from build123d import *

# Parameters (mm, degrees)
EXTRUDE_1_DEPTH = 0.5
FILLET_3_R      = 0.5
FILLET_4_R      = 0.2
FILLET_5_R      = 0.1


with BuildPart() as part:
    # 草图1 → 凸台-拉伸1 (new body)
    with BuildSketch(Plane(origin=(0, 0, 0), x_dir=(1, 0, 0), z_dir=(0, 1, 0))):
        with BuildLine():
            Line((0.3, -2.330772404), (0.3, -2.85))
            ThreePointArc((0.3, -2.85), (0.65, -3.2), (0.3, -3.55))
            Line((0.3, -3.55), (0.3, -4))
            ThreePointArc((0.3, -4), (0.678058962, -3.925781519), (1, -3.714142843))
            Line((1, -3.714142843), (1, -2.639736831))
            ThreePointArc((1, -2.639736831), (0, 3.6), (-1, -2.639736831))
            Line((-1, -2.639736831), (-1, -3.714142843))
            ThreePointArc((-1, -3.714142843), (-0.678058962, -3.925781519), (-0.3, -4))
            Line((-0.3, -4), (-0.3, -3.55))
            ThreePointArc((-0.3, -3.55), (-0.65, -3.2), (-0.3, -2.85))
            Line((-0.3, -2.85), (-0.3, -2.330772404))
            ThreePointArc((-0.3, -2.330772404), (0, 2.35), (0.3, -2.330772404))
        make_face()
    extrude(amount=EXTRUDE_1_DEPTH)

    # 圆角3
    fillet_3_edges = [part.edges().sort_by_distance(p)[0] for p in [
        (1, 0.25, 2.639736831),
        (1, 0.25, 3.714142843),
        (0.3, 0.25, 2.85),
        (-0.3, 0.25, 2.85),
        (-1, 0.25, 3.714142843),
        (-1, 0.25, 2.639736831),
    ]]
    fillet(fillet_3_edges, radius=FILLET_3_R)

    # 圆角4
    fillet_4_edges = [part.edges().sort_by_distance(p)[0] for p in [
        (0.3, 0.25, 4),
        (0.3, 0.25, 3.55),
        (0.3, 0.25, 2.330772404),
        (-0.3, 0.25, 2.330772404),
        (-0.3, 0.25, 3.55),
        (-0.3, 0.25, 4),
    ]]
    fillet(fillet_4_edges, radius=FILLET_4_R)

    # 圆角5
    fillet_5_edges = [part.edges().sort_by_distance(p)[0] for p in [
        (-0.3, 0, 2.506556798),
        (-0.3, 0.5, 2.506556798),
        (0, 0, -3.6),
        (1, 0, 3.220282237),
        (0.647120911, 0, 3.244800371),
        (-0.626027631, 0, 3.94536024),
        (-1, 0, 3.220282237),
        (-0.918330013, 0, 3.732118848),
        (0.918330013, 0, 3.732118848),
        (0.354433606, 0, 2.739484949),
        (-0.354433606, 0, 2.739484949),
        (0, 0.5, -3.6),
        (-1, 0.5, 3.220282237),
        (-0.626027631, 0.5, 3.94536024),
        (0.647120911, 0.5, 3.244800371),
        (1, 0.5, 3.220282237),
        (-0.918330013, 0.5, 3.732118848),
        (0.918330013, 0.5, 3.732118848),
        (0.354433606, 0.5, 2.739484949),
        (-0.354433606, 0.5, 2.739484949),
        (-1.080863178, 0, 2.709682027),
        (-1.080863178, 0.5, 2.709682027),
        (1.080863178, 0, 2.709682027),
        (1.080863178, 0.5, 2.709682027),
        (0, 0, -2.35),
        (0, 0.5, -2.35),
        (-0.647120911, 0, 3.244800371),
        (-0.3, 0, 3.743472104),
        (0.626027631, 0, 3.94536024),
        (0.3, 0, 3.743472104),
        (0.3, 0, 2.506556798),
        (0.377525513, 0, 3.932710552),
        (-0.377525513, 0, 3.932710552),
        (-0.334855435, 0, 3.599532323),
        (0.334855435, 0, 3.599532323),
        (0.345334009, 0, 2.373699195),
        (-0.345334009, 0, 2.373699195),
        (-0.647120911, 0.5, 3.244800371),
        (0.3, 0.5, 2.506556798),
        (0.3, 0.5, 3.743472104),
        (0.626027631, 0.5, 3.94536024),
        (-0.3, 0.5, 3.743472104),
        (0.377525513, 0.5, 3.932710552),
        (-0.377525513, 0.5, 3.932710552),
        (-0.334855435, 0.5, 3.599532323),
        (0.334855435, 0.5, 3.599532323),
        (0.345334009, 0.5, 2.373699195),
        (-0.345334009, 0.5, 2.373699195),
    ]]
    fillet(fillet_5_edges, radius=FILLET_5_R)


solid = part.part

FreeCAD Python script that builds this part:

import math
import FreeCAD as App
import Part
import Sketcher
Q = App.Units.Quantity


def edges_at(feature, points):
    """Names of the edges that pass closest to the given points."""
    edges = feature.Shape.Edges
    near = lambda p: min(range(len(edges)), key=lambda i: edges[i].distToShape(Part.Vertex(*p))[0])
    return sorted({f"Edge{near(p) + 1}" for p in points})

doc = App.newDocument("Part")
body = doc.addObject("PartDesign::Body", "Body")

# Sketch on XZ plane
sketch1 = doc.addObject("Sketcher::SketchObject", "Sketch")
body.addObject(sketch1)
sketch1.AttachmentSupport = (doc.XZ_Plane, [""])
sketch1.MapMode = "FlatFace"
sketch1.addGeometry([
    Part.LineSegment(App.Vector(0.3, 2.33, 0), App.Vector(0.3, 2.85, 0)),  # 0
    Part.ArcOfCircle(Part.Circle(App.Vector(0.3, 3.2, 0), App.Vector(0, 0, 1), 0.35), math.radians(-90), math.radians(90)),  # 1
    Part.LineSegment(App.Vector(0.3, 3.55, 0), App.Vector(0.3, 4, 0)),  # 2
    Part.ArcOfCircle(Part.Circle(App.Vector(0.3, 3, 0), App.Vector(0, 0, 1), 1), math.radians(46), math.radians(90)),  # 3
    Part.LineSegment(App.Vector(1, 3.71, 0), App.Vector(1, 2.64, 0)),  # 4
    Part.ArcOfCircle(Part.Circle(App.Vector(0, -0.4, 0), App.Vector(0, 0, 1), 3.2), math.radians(108), math.radians(432)),  # 5
    Part.LineSegment(App.Vector(-1, 2.64, 0), App.Vector(-1, 3.71, 0)),  # 6
    Part.ArcOfCircle(Part.Circle(App.Vector(-0.3, 3, 0), App.Vector(0, 0, 1), 1), math.radians(90), math.radians(134)),  # 7
    Part.LineSegment(App.Vector(-0.3, 4, 0), App.Vector(-0.3, 3.55, 0)),  # 8
    Part.ArcOfCircle(Part.Circle(App.Vector(-0.3, 3.2, 0), App.Vector(0, 0, 1), 0.35), math.radians(90), math.radians(270)),  # 9
    Part.LineSegment(App.Vector(-0.3, 2.85, 0), App.Vector(-0.3, 2.33, 0)),  # 10
    Part.ArcOfCircle(Part.Circle(App.Vector(0, 0, 0), App.Vector(0, 0, 1), 2.35), math.radians(97), math.radians(443)),  # 11
], False)
sketch1.addConstraint([
    Sketcher.Constraint("Coincident", 0, 2, 1, 1),
    Sketcher.Constraint("Coincident", 1, 2, 2, 1),
    Sketcher.Constraint("Coincident", 2, 2, 3, 2),
    Sketcher.Constraint("Coincident", 3, 1, 4, 1),
    Sketcher.Constraint("Coincident", 4, 2, 5, 2),
    Sketcher.Constraint("Coincident", 5, 1, 6, 1),
    Sketcher.Constraint("Coincident", 6, 2, 7, 2),
    Sketcher.Constraint("Coincident", 7, 1, 8, 1),
    Sketcher.Constraint("Coincident", 8, 2, 9, 1),
    Sketcher.Constraint("Coincident", 9, 2, 10, 1),
    Sketcher.Constraint("Coincident", 10, 2, 11, 1),
    Sketcher.Constraint("Coincident", 11, 2, 0, 1),
    Sketcher.Constraint("Vertical", 0),
    Sketcher.Constraint("Vertical", 2),
    Sketcher.Constraint("Vertical", 4),
    Sketcher.Constraint("Vertical", 6),
    Sketcher.Constraint("Vertical", 8),
    Sketcher.Constraint("Vertical", 10),
    Sketcher.Constraint("Coincident", 11, 3, -1, 1),
    Sketcher.Constraint("Equal", 3, 7),
    Sketcher.Constraint("Equal", 1, 9),
    Sketcher.Constraint("Symmetric", 3, 3, 7, 3, -2),
    Sketcher.Constraint("Symmetric", 1, 3, 9, 3, -2),
    Sketcher.Constraint("Symmetric", 4, 2, 5, 1, -2),
    Sketcher.Constraint("Horizontal", 10, 2, 11, 2),
    Sketcher.Constraint("Vertical", 1, 3, 3, 3),
    Sketcher.Constraint("Vertical", 3, 3, 0, 2),
    Sketcher.Constraint("Vertical", 0, 2, 1, 2),
    Sketcher.Constraint("Vertical", 9, 3, 7, 1),
    Sketcher.Constraint("Radius", 3, Q("1 mm")),
    Sketcher.Constraint("Radius", 5, Q("3.2 mm")),
    Sketcher.Constraint("Radius", 1, Q("0.35 mm")),
    Sketcher.Constraint("Radius", 11, Q("2.35 mm")),
    Sketcher.Constraint("DistanceY", -1, 1, 3, 3, Q("3 mm")),
    Sketcher.Constraint("DistanceX", -1, 1, 3, 1, Q("1 mm")),
    Sketcher.Constraint("DistanceY", 2, 1, 2, 2, Q("0.45 mm")),
    Sketcher.Constraint("DistanceX", -1, 1, 1, 3, Q("0.3 mm")),
    Sketcher.Constraint("DistanceY", 5, 3, -1, 1, Q("0.4 mm")),
])
pad1 = doc.addObject("PartDesign::Pad", "Pad")
body.addObject(pad1)
pad1.Profile = sketch1
pad1.Length = 0.5
pad1.Reversed = True
doc.recompute()

fillet = doc.addObject("PartDesign::Fillet", "Fillet")
body.addObject(fillet)
fillet.Base = (pad1, edges_at(pad1, [
    (1, 0.25, 2.64),
    (1, 0.25, 3.714),
    (0.3, 0.25, 2.85),
    (-0.3, 0.25, 2.85),
    (-1, 0.25, 3.714),
    (-1, 0.25, 2.64),
]))
fillet.Radius = 0.5
doc.recompute()

fillet2 = doc.addObject("PartDesign::Fillet", "Fillet001")
body.addObject(fillet2)
fillet2.Base = (fillet, edges_at(fillet, [
    (0.3, 0.25, 4),
    (0.3, 0.25, 3.55),
    (0.3, 0.25, 2.331),
    (-0.3, 0.25, 2.331),
    (-0.3, 0.25, 3.55),
    (-0.3, 0.25, 4),
]))
fillet2.Radius = 0.2
doc.recompute()

fillet3 = doc.addObject("PartDesign::Fillet", "Fillet002")
body.addObject(fillet3)
fillet3.Base = (fillet2, edges_at(fillet2, [
    (-0.3, 0, 2.507),
    (-0.3, 0.5, 2.507),
    (0, 0, -3.6),
    (1, 0, 3.22),
    (0.647, 0, 3.245),
    (-0.626, 0, 3.945),
    (-1, 0, 3.22),
    (-0.918, 0, 3.732),
    (0.918, 0, 3.732),
    (0.354, 0, 2.739),
    (-0.354, 0, 2.739),
    (0, 0.5, -3.6),
    (-1, 0.5, 3.22),
    (-0.626, 0.5, 3.945),
    (0.647, 0.5, 3.245),
    (1, 0.5, 3.22),
    (-0.918, 0.5, 3.732),
    (0.918, 0.5, 3.732),
    (0.354, 0.5, 2.739),
    (-0.354, 0.5, 2.739),
    (-1.081, 0, 2.71),
    (-1.081, 0.5, 2.71),
    (1.081, 0, 2.71),
    (1.081, 0.5, 2.71),
    (0, 0, -2.35),
    (0, 0.5, -2.35),
    (-0.647, 0, 3.245),
    (-0.3, 0, 3.743),
    (0.626, 0, 3.945),
    (0.3, 0, 3.743),
    (0.3, 0, 2.507),
    (0.378, 0, 3.933),
    (-0.378, 0, 3.933),
    (-0.335, 0, 3.6),
    (0.335, 0, 3.6),
    (0.345, 0, 2.374),
    (-0.345, 0, 2.374),
    (-0.647, 0.5, 3.245),
    (0.3, 0.5, 2.507),
    (0.3, 0.5, 3.743),
    (0.626, 0.5, 3.945),
    (-0.3, 0.5, 3.743),
    (0.378, 0.5, 3.933),
    (-0.378, 0.5, 3.933),
    (-0.335, 0.5, 3.6),
    (0.335, 0.5, 3.6),
    (0.345, 0.5, 2.374),
    (-0.345, 0.5, 2.374),
]))
fillet3.Radius = 0.1

doc.recompute()
